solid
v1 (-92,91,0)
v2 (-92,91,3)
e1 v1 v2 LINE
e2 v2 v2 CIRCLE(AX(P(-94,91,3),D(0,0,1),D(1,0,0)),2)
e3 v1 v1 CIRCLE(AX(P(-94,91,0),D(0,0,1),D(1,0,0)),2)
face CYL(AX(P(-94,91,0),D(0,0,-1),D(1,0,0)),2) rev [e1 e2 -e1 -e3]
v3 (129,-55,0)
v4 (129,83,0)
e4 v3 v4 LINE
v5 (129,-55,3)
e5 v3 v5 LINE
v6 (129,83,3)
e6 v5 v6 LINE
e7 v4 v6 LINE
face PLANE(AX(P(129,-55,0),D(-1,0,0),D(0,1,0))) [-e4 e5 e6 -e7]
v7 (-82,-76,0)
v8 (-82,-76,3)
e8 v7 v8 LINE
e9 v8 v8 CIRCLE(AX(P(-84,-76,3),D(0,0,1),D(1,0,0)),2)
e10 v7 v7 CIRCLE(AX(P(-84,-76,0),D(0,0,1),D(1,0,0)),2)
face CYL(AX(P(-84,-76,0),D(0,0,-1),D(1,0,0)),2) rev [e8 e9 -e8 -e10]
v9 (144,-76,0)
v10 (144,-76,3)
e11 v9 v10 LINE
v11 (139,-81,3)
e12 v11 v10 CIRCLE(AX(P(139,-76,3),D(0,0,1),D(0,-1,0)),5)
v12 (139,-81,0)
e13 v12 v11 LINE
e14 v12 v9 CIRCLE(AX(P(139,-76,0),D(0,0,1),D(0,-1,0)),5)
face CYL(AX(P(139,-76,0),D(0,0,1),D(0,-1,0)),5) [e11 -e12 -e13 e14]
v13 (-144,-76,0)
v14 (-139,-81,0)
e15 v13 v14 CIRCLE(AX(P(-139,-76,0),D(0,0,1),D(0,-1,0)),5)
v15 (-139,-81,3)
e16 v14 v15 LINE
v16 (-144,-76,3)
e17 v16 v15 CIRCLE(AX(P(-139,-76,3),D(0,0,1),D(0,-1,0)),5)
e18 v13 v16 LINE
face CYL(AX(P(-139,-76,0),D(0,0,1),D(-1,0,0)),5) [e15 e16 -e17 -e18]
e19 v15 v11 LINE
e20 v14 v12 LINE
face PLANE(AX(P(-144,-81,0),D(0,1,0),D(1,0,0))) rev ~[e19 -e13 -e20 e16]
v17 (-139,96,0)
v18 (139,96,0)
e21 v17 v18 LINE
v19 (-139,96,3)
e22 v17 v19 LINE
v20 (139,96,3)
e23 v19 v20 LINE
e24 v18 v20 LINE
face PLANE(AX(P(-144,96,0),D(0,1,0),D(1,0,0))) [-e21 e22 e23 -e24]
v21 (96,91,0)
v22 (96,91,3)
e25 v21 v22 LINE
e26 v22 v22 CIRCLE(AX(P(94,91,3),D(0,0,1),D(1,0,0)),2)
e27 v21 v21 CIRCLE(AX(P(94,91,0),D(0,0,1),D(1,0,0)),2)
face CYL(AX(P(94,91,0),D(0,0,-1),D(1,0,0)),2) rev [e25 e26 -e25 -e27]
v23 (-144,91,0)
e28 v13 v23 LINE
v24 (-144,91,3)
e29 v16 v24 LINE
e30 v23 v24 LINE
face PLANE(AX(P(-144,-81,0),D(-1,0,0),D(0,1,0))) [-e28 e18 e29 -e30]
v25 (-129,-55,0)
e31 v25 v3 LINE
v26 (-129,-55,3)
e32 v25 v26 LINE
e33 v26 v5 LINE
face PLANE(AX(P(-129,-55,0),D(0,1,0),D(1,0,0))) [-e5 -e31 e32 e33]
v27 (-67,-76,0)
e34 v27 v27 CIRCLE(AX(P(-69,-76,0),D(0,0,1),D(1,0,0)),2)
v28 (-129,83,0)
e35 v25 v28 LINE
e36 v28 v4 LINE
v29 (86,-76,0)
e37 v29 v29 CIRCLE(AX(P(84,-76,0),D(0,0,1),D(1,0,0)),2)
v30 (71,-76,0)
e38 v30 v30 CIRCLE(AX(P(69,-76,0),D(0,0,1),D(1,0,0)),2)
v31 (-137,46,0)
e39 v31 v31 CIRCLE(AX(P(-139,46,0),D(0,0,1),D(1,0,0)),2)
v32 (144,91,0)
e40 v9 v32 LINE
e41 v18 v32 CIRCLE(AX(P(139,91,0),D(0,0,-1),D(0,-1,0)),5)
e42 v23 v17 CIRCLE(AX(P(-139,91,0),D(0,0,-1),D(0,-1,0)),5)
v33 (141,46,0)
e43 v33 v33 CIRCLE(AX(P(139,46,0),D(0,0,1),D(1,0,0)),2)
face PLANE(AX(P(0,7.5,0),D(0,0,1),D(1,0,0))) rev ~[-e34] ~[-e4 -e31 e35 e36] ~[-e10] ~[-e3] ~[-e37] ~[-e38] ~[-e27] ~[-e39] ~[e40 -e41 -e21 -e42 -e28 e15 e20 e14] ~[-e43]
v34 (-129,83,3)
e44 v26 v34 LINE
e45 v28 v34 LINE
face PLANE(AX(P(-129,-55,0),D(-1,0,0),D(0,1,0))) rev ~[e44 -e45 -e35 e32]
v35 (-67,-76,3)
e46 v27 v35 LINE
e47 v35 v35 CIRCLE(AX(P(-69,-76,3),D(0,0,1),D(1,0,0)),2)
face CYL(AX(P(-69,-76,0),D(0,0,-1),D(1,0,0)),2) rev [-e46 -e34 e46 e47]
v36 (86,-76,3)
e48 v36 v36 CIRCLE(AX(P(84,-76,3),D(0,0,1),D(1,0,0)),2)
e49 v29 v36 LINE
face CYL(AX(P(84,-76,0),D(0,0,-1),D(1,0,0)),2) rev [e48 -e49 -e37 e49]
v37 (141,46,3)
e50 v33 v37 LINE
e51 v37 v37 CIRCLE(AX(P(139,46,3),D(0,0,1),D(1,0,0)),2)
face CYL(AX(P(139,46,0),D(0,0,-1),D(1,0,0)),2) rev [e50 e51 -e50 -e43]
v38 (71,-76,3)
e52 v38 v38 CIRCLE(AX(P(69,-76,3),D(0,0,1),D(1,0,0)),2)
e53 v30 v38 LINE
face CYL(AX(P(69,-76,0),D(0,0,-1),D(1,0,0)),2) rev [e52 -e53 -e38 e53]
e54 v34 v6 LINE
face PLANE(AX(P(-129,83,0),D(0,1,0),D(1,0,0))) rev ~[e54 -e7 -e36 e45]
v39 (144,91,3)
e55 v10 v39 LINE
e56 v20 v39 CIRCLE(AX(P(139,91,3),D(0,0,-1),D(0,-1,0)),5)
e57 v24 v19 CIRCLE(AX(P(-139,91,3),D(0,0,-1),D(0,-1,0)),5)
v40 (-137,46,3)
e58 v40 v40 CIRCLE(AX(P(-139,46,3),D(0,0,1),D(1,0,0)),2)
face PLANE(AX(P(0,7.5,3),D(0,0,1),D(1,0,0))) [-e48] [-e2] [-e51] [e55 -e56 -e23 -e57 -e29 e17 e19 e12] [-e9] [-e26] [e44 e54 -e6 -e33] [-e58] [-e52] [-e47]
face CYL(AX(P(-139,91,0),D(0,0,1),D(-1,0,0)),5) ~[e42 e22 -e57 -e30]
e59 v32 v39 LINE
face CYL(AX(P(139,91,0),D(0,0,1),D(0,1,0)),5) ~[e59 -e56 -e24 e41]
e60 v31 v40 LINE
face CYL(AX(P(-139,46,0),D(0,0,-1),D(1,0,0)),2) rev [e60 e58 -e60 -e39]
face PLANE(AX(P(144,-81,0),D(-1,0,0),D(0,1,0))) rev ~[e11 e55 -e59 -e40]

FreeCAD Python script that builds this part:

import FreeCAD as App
import Part
import Sketcher

V = App.Vector
Q = App.Units.Quantity


def edges_at(feature, points):
    """Names of the edges that pass closest to the given points."""
    edges = feature.Shape.Edges
    near = lambda p: min(range(len(edges)), key=lambda i: edges[i].distToShape(Part.Vertex(*p))[0])
    return sorted({f"Edge{near(p) + 1}" for p in points})

doc = App.newDocument("Part")
body = doc.addObject("PartDesign::Body", "Body")

sketch1 = doc.addObject("Sketcher::SketchObject", "Sketch")
body.addObject(sketch1)
sketch1.AttachmentSupport = (doc.XY_Plane, [""])
sketch1.MapMode = "FlatFace"
sketch1.addGeometry([
    Part.LineSegment(V(-144, 96, 0), V(-144, -81, 0)),
    Part.LineSegment(V(-144, -81, 0), V(144, -81, 0)),
    Part.LineSegment(V(144, -81, 0), V(144, 96, 0)),
    Part.LineSegment(V(144, 96, 0), V(-144, 96, 0)),
    Part.Circle(V(-84, -76, 0), V(0, 0, 1), 2),
    Part.Circle(V(-69, -76, 0), V(0, 0, 1), 2),
    Part.Circle(V(69, -76, 0), V(0, 0, 1), 2),
    Part.Circle(V(84, -76, 0), V(0, 0, 1), 2),
    Part.Circle(V(-139, 46, 0), V(0, 0, 1), 2),
    Part.Circle(V(-94, 91, 0), V(0, 0, 1), 2),
    Part.LineSegment(V(129, -55, 0), V(-129, -55, 0)),
    Part.LineSegment(V(-129, -55, 0), V(-129, 83, 0)),
    Part.LineSegment(V(-129, 83, 0), V(129, 83, 0)),
    Part.LineSegment(V(129, 83, 0), V(129, -55, 0)),
    Part.Circle(V(139, 46, 0), V(0, 0, 1), 2),
    Part.Circle(V(94, 91, 0), V(0, 0, 1), 2),
], False)
sketch1.addConstraint([
    Sketcher.Constraint("Coincident", 0, 2, 1, 1),
    Sketcher.Constraint("Coincident", 1, 2, 2, 1),
    Sketcher.Constraint("Coincident", 2, 2, 3, 1),
    Sketcher.Constraint("Coincident", 3, 2, 0, 1),
    Sketcher.Constraint("Coincident", 10, 2, 11, 1),
    Sketcher.Constraint("Coincident", 11, 2, 12, 1),
    Sketcher.Constraint("Coincident", 12, 2, 13, 1),
    Sketcher.Constraint("Coincident", 13, 2, 10, 1),
    Sketcher.Constraint("Vertical", 0),
    Sketcher.Constraint("Horizontal", 1),
    Sketcher.Constraint("Vertical", 2),
    Sketcher.Constraint("Horizontal", 3),
    Sketcher.Constraint("Horizontal", 10),
    Sketcher.Constraint("Vertical", 11),
    Sketcher.Constraint("Horizontal", 12),
    Sketcher.Constraint("Vertical", 13),
    Sketcher.Constraint("Equal", 4, 5),
    Sketcher.Constraint("Equal", 5, 6),
    Sketcher.Constraint("Equal", 6, 7),
    Sketcher.Constraint("Equal", 7, 8),
    Sketcher.Constraint("Equal", 8, 9),
    Sketcher.Constraint("Equal", 9, 14),
    Sketcher.Constraint("Equal", 14, 15),
    Sketcher.Constraint("Symmetric", 5, 3, 6, 3, -2),
    Sketcher.Constraint("Symmetric", 4, 3, 7, 3, -2),
    Sketcher.Constraint("Symmetric", 8, 3, 14, 3, -2),
    Sketcher.Constraint("Symmetric", 9, 3, 15, 3, -2),
    Sketcher.Constraint("Horizontal", 4, 3, 5, 3),
    Sketcher.Constraint("Diameter", 4, Q("4 mm")),
    Sketcher.Constraint("DistanceX", 1, 1, 1, 2, Q("288 mm")),
    Sketcher.Constraint("DistanceX", 10, 2, 10, 1, Q("258 mm")),
    Sketcher.Constraint("DistanceY", 0, 2, 0, 1, Q("177 mm")),
    Sketcher.Constraint("DistanceY", 11, 1, 11, 2, Q("138 mm")),
    Sketcher.Constraint("DistanceX", 4, 3, -1, 1, Q("84 mm")),
    Sketcher.Constraint("DistanceY", 4, 3, -1, 1, Q("76 mm")),
    Sketcher.Constraint("DistanceX", 5, 3, -1, 1, Q("69 mm")),
    Sketcher.Constraint("DistanceX", 8, 3, -1, 1, Q("139 mm")),
    Sketcher.Constraint("DistanceY", -1, 1, 8, 3, Q("46 mm")),
    Sketcher.Constraint("DistanceX", 9, 3, -1, 1, Q("94 mm")),
    Sketcher.Constraint("DistanceY", -1, 1, 9, 3, Q("91 mm")),
    Sketcher.Constraint("DistanceX", 0, 2, -1, 1, Q("144 mm")),
    Sketcher.Constraint("DistanceY", 0, 2, -1, 1, Q("81 mm")),
    Sketcher.Constraint("DistanceX", 10, 2, -1, 1, Q("129 mm")),
    Sketcher.Constraint("DistanceY", 10, 2, -1, 1, Q("55 mm")),
])
pad1 = doc.addObject("PartDesign::Pad", "Pad")
body.addObject(pad1)
pad1.Profile = sketch1
pad1.Length = 3
doc.recompute()

fillet = doc.addObject("PartDesign::Fillet", "Fillet")
body.addObject(fillet)
fillet.Base = (pad1, edges_at(pad1, [
    (-144, 96, 1.5),
    (-144, -81, 1.5),
    (144, -81, 1.5),
    (144, 96, 1.5),
]))
fillet.Radius = 5

doc.recompute()
